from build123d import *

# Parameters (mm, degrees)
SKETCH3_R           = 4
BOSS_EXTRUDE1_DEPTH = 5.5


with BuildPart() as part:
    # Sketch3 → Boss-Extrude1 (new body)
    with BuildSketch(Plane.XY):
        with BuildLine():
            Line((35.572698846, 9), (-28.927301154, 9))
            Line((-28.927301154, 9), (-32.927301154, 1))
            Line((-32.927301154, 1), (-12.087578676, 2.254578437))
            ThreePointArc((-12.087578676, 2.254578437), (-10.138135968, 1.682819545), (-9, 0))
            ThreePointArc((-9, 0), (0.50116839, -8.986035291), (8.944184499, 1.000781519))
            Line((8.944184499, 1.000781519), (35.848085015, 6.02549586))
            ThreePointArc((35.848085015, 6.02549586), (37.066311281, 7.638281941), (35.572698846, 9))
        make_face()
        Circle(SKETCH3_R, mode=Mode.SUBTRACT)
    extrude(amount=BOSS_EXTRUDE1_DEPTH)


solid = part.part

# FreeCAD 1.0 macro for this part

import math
import FreeCAD as App
import Part
import Sketcher
Q = App.Units.Quantity

doc = App.newDocument("Part")
body = doc.addObject("PartDesign::Body", "Body")

# Sketch on XY plane
sketch1 = doc.addObject("Sketcher::SketchObject", "Sketch")
body.addObject(sketch1)
sketch1.AttachmentSupport = (doc.XY_Plane, [""])
sketch1.MapMode = "FlatFace"
sketch1.addGeometry([
    Part.LineSegment(App.Vector(35.572699, 9, 0), App.Vector(-28.927301, 9, 0)),  # 0
    Part.LineSegment(App.Vector(-28.927301, 9, 0), App.Vector(-32.927301, 1, 0)),  # 1
    Part.LineSegment(App.Vector(-32.927301, 1, 0), App.Vector(-12.087579, 2.254578, 0)),  # 2
    Part.ArcOfCircle(Part.Circle(App.Vector(-11.907301, -0.74, 0), App.Vector(0, 0, 1), 3), math.radians(14.28035), math.radians(93.445123)),  # 3
    Part.ArcOfCircle(Part.Circle(App.Vector(0, 0, 0), App.Vector(0, 0, 1), 9), math.radians(180), math.radians(366.384377)),  # 4
    Part.LineSegment(App.Vector(8.944184, 1.000782, 0), App.Vector(35.848085, 6.025496, 0)),  # 5
    Part.ArcOfCircle(Part.Circle(App.Vector(35.572699, 7.5, 0), App.Vector(0, 0, 1), 1.5), math.radians(-79.421017), math.radians(90)),  # 6
    Part.Circle(App.Vector(0, 0, 0), App.Vector(0, 0, 1), 4),  # 7
], False)
sketch1.addConstraint([
    Sketcher.Constraint("Coincident", 0, 2, 1, 1),
    Sketcher.Constraint("Coincident", 1, 2, 2, 1),
    Sketcher.Constraint("Tangent", 2, 2, 3, 2),
    Sketcher.Constraint("Coincident", 3, 1, 4, 1),
    Sketcher.Constraint("Coincident", 4, 2, 5, 1),
    Sketcher.Constraint("Tangent", 5, 2, 6, 1),
    Sketcher.Constraint("Tangent", 6, 2, 0, 1),
    Sketcher.Constraint("Horizontal", 0),
    Sketcher.Constraint("Coincident", 4, 3, -1, 1),
    Sketcher.Constraint("Coincident", 7, 3, -1, 1),
    Sketcher.Constraint("PointOnObject", 3, 1, -1),
    Sketcher.Constraint("Diameter", 7, Q("8 mm")),
    Sketcher.Constraint("Radius", 3, Q("3 mm")),
    Sketcher.Constraint("Radius", 4, Q("9 mm")),
    Sketcher.Constraint("Radius", 6, Q("1.5 mm")),
    Sketcher.Constraint("DistanceX", 0, 2, 0, 1, Q("64.5 mm")),
    Sketcher.Constraint("DistanceY", -1, 1, 0, 2, Q("9 mm")),
    Sketcher.Constraint("DistanceY", -1, 1, 1, 2, Q("1 mm")),
    Sketcher.Constraint("DistanceX", 1, 2, 0, 2, Q("4 mm")),
    Sketcher.Constraint("DistanceY", 3, 3, -1, 1, Q("0.74 mm")),
    Sketcher.Constraint("DistanceX", 3, 3, 6, 3, Q("47.48 mm")),
    Sketcher.Constraint("Distance", 5, Q("27.3691 mm")),
])
pad1 = doc.addObject("PartDesign::Pad", "Pad")
body.addObject(pad1)
pad1.Profile = sketch1
pad1.Length = 5.5

doc.recompute()
